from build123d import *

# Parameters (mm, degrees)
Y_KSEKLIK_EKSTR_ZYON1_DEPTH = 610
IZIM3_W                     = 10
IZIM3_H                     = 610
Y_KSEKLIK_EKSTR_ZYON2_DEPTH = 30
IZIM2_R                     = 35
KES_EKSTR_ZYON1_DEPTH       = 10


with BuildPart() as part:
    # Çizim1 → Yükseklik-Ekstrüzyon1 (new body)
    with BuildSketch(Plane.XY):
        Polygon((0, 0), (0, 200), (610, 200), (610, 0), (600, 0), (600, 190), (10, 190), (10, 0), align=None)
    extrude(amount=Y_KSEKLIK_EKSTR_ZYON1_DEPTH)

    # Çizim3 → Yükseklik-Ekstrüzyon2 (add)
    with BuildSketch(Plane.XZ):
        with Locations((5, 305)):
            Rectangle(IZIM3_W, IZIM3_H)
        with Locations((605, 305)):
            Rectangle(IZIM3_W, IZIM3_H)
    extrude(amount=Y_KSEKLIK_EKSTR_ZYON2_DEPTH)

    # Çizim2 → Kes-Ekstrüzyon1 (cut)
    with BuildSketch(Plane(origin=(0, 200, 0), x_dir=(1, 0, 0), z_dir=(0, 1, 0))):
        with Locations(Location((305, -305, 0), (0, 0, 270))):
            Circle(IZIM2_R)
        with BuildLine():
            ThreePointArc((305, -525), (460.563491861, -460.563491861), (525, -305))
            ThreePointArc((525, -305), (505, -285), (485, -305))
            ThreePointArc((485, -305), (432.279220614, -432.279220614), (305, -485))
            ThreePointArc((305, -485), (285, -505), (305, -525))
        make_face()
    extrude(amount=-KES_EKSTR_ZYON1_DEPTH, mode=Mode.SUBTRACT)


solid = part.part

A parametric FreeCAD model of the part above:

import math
import FreeCAD as App
import Part
import Sketcher

V = App.Vector
Q = App.Units.Quantity


def add_polygon(sketch, points):
    """Adds a closed chain of lines whose ends are joined by coincident constraints."""
    first, n = sketch.GeometryCount, len(points)
    for a, b in zip(points, points[1:] + points[:1]):
        sketch.addGeometry(Part.LineSegment(App.Vector(*a, 0), App.Vector(*b, 0)), False)
    for i in range(n):
        sketch.addConstraint(Sketcher.Constraint("Coincident", first + i, 2, first + (i + 1) % n, 1))

doc = App.newDocument("Part")
params = doc.addObject("Spreadsheet::Sheet", "Params")
for row, (alias, value) in enumerate([
    ("sketch1_width", "10 mm"),
    ("sketch1_width2", "590 mm"),
    ("sketch1_height", "200 mm"),
    ("sketch1_height2", "190 mm"),
    ("pad1_length", "610 mm"),
    ("sketch2_width", "10 mm"),
    ("sketch2_height", "610 mm"),
    ("pad2_length", "30 mm"),
    ("sketch3_diameter", "70 mm"),
    ("sketch3_radius", "220 mm"),
    ("sketch3_radius2", "20 mm"),
    ("pocket1_length", "10 mm"),
], start=1):
    params.set(f"A{row}", alias)
    params.set(f"B{row}", "=" + value)
    params.setAlias(f"B{row}", alias)

body = doc.addObject("PartDesign::Body", "Body")

# Sketch on XY plane
sketch1 = body.newObject("Sketcher::SketchObject", "Sketch")
sketch1.AttachmentSupport = (doc.getObject("XY_Plane"), [""])
sketch1.MapMode = "FlatFace"
add_polygon(sketch1, [(0, 200), (0, 0), (10, 0), (10, 190), (600, 190), (600, 0), (610, 0), (610, 200)])  # lines 0-7
sketch1.addConstraint([
    Sketcher.Constraint("Vertical", 0),
    Sketcher.Constraint("Horizontal", 1),
    Sketcher.Constraint("Vertical", 2),
    Sketcher.Constraint("Horizontal", 3),
    Sketcher.Constraint("Vertical", 4),
    Sketcher.Constraint("Horizontal", 5),
    Sketcher.Constraint("Vertical", 6),
    Sketcher.Constraint("Horizontal", 7),
    Sketcher.Constraint("Coincident", 0, 2, -1, 1),
    Sketcher.Constraint("PointOnObject", 4, 2, -1),
    Sketcher.Constraint("Equal", 1, 5),
    Sketcher.Constraint("DistanceX", 1, 1, 1, 2, Q("10 mm")),
    Sketcher.Constraint("DistanceX", 3, 1, 3, 2, Q("590 mm")),
    Sketcher.Constraint("DistanceY", 0, 2, 0, 1, Q("200 mm")),
    Sketcher.Constraint("DistanceY", 2, 1, 2, 2, Q("190 mm")),
])
sketch1.setExpression("Constraints[19]", "Params.sketch1_width")
sketch1.setExpression("Constraints[20]", "Params.sketch1_width2")
sketch1.setExpression("Constraints[21]", "Params.sketch1_height")
sketch1.setExpression("Constraints[22]", "Params.sketch1_height2")
pad1 = body.newObject("PartDesign::Pad", "Pad")
pad1.Profile = sketch1
pad1.setExpression("Length", "Params.pad1_length")

# Sketch on XZ plane
sketch2 = body.newObject("Sketcher::SketchObject", "Sketch001")
sketch2.AttachmentSupport = (doc.getObject("XZ_Plane"), [""])
sketch2.MapMode = "FlatFace"
add_polygon(sketch2, [(0, 610), (0, 0), (10, 0), (10, 610)])  # lines 0-3
add_polygon(sketch2, [(600, 610), (600, 0), (610, 0), (610, 610)])  # lines 4-7
sketch2.addConstraint([
    Sketcher.Constraint("Vertical", 0),
    Sketcher.Constraint("Horizontal", 1),
    Sketcher.Constraint("Vertical", 2),
    Sketcher.Constraint("Horizontal", 3),
    Sketcher.Constraint("Vertical", 4),
    Sketcher.Constraint("Horizontal", 5),
    Sketcher.Constraint("Vertical", 6),
    Sketcher.Constraint("Horizontal", 7),
    Sketcher.Constraint("Coincident", 0, 2, -1, 1),
    Sketcher.Constraint("PointOnObject", 4, 2, -1),
    Sketcher.Constraint("Horizontal", 3, 2, 6, 2),
    Sketcher.Constraint("Equal", 3, 5),
    Sketcher.Constraint("DistanceX", 1, 1, 1, 2, Q("10 mm")),
    Sketcher.Constraint("DistanceY", 0, 2, 0, 1, Q("610 mm")),
    Sketcher.Constraint("DistanceX", -1, 1, 4, 2, Q("600 mm")),
])
sketch2.setExpression("Constraints[20]", "Params.sketch2_width")
sketch2.setExpression("Constraints[21]", "Params.sketch2_height")
pad2 = body.newObject("PartDesign::Pad", "Pad001")
pad2.Profile = sketch2
pad2.setExpression("Length", "Params.pad2_length")

# Sketch on XZ plane
sketch3 = body.newObject("Sketcher::SketchObject", "Sketch002")
sketch3.AttachmentSupport = (doc.getObject("XZ_Plane"), [""])
sketch3.MapMode = "FlatFace"
sketch3.AttachmentOffset = App.Placement(V(0, 0, -200), App.Rotation())
sketch3.addGeometry([
    Part.Circle(V(305, 305, 0), V(0, 0, 1), 35),  # 0
    Part.ArcOfCircle(Part.Circle(V(305, 305, 0), V(0, 0, 1), 220), math.radians(0), math.radians(90)),  # 1
    Part.ArcOfCircle(Part.Circle(V(505, 305, 0), V(0, 0, 1), 20), math.radians(180), math.radians(360)),  # 2
    Part.ArcOfCircle(Part.Circle(V(305, 305, 0), V(0, 0, 1), 180), math.radians(0), math.radians(90)),  # 3
    Part.ArcOfCircle(Part.Circle(V(305, 505, 0), V(0, 0, 1), 20), math.radians(90), math.radians(270)),  # 4
], False)
sketch3.addConstraint([
    Sketcher.Constraint("Tangent", 1, 1, 2, 2),
    Sketcher.Constraint("Tangent", 2, 1, 3, 1),
    Sketcher.Constraint("Tangent", 3, 2, 4, 2),
    Sketcher.Constraint("Tangent", 4, 1, 1, 2),
    Sketcher.Constraint("Coincident", 1, 3, 0, 3),
    Sketcher.Constraint("Coincident", 3, 3, 0, 3),
    Sketcher.Constraint("Horizontal", 1, 3, 2, 3),
    Sketcher.Constraint("Vertical", 3, 3, 4, 3),
    Sketcher.Constraint("Diameter", 0, Q("70 mm")),
    Sketcher.Constraint("Radius", 1, Q("220 mm")),
    Sketcher.Constraint("Radius", 2, Q("20 mm")),
    Sketcher.Constraint("DistanceX", -1, 1, 0, 3, Q("305 mm")),
    Sketcher.Constraint("DistanceY", -1, 1, 0, 3, Q("305 mm")),
])
sketch3.setExpression("Constraints[8]", "Params.sketch3_diameter")
sketch3.setExpression("Constraints[9]", "Params.sketch3_radius")
sketch3.setExpression("Constraints[10]", "Params.sketch3_radius2")
pocket1 = body.newObject("PartDesign::Pocket", "Pocket")
pocket1.Profile = sketch3
pocket1.setExpression("Length", "Params.pocket1_length")
pocket1.Reversed = True

doc.recompute()
